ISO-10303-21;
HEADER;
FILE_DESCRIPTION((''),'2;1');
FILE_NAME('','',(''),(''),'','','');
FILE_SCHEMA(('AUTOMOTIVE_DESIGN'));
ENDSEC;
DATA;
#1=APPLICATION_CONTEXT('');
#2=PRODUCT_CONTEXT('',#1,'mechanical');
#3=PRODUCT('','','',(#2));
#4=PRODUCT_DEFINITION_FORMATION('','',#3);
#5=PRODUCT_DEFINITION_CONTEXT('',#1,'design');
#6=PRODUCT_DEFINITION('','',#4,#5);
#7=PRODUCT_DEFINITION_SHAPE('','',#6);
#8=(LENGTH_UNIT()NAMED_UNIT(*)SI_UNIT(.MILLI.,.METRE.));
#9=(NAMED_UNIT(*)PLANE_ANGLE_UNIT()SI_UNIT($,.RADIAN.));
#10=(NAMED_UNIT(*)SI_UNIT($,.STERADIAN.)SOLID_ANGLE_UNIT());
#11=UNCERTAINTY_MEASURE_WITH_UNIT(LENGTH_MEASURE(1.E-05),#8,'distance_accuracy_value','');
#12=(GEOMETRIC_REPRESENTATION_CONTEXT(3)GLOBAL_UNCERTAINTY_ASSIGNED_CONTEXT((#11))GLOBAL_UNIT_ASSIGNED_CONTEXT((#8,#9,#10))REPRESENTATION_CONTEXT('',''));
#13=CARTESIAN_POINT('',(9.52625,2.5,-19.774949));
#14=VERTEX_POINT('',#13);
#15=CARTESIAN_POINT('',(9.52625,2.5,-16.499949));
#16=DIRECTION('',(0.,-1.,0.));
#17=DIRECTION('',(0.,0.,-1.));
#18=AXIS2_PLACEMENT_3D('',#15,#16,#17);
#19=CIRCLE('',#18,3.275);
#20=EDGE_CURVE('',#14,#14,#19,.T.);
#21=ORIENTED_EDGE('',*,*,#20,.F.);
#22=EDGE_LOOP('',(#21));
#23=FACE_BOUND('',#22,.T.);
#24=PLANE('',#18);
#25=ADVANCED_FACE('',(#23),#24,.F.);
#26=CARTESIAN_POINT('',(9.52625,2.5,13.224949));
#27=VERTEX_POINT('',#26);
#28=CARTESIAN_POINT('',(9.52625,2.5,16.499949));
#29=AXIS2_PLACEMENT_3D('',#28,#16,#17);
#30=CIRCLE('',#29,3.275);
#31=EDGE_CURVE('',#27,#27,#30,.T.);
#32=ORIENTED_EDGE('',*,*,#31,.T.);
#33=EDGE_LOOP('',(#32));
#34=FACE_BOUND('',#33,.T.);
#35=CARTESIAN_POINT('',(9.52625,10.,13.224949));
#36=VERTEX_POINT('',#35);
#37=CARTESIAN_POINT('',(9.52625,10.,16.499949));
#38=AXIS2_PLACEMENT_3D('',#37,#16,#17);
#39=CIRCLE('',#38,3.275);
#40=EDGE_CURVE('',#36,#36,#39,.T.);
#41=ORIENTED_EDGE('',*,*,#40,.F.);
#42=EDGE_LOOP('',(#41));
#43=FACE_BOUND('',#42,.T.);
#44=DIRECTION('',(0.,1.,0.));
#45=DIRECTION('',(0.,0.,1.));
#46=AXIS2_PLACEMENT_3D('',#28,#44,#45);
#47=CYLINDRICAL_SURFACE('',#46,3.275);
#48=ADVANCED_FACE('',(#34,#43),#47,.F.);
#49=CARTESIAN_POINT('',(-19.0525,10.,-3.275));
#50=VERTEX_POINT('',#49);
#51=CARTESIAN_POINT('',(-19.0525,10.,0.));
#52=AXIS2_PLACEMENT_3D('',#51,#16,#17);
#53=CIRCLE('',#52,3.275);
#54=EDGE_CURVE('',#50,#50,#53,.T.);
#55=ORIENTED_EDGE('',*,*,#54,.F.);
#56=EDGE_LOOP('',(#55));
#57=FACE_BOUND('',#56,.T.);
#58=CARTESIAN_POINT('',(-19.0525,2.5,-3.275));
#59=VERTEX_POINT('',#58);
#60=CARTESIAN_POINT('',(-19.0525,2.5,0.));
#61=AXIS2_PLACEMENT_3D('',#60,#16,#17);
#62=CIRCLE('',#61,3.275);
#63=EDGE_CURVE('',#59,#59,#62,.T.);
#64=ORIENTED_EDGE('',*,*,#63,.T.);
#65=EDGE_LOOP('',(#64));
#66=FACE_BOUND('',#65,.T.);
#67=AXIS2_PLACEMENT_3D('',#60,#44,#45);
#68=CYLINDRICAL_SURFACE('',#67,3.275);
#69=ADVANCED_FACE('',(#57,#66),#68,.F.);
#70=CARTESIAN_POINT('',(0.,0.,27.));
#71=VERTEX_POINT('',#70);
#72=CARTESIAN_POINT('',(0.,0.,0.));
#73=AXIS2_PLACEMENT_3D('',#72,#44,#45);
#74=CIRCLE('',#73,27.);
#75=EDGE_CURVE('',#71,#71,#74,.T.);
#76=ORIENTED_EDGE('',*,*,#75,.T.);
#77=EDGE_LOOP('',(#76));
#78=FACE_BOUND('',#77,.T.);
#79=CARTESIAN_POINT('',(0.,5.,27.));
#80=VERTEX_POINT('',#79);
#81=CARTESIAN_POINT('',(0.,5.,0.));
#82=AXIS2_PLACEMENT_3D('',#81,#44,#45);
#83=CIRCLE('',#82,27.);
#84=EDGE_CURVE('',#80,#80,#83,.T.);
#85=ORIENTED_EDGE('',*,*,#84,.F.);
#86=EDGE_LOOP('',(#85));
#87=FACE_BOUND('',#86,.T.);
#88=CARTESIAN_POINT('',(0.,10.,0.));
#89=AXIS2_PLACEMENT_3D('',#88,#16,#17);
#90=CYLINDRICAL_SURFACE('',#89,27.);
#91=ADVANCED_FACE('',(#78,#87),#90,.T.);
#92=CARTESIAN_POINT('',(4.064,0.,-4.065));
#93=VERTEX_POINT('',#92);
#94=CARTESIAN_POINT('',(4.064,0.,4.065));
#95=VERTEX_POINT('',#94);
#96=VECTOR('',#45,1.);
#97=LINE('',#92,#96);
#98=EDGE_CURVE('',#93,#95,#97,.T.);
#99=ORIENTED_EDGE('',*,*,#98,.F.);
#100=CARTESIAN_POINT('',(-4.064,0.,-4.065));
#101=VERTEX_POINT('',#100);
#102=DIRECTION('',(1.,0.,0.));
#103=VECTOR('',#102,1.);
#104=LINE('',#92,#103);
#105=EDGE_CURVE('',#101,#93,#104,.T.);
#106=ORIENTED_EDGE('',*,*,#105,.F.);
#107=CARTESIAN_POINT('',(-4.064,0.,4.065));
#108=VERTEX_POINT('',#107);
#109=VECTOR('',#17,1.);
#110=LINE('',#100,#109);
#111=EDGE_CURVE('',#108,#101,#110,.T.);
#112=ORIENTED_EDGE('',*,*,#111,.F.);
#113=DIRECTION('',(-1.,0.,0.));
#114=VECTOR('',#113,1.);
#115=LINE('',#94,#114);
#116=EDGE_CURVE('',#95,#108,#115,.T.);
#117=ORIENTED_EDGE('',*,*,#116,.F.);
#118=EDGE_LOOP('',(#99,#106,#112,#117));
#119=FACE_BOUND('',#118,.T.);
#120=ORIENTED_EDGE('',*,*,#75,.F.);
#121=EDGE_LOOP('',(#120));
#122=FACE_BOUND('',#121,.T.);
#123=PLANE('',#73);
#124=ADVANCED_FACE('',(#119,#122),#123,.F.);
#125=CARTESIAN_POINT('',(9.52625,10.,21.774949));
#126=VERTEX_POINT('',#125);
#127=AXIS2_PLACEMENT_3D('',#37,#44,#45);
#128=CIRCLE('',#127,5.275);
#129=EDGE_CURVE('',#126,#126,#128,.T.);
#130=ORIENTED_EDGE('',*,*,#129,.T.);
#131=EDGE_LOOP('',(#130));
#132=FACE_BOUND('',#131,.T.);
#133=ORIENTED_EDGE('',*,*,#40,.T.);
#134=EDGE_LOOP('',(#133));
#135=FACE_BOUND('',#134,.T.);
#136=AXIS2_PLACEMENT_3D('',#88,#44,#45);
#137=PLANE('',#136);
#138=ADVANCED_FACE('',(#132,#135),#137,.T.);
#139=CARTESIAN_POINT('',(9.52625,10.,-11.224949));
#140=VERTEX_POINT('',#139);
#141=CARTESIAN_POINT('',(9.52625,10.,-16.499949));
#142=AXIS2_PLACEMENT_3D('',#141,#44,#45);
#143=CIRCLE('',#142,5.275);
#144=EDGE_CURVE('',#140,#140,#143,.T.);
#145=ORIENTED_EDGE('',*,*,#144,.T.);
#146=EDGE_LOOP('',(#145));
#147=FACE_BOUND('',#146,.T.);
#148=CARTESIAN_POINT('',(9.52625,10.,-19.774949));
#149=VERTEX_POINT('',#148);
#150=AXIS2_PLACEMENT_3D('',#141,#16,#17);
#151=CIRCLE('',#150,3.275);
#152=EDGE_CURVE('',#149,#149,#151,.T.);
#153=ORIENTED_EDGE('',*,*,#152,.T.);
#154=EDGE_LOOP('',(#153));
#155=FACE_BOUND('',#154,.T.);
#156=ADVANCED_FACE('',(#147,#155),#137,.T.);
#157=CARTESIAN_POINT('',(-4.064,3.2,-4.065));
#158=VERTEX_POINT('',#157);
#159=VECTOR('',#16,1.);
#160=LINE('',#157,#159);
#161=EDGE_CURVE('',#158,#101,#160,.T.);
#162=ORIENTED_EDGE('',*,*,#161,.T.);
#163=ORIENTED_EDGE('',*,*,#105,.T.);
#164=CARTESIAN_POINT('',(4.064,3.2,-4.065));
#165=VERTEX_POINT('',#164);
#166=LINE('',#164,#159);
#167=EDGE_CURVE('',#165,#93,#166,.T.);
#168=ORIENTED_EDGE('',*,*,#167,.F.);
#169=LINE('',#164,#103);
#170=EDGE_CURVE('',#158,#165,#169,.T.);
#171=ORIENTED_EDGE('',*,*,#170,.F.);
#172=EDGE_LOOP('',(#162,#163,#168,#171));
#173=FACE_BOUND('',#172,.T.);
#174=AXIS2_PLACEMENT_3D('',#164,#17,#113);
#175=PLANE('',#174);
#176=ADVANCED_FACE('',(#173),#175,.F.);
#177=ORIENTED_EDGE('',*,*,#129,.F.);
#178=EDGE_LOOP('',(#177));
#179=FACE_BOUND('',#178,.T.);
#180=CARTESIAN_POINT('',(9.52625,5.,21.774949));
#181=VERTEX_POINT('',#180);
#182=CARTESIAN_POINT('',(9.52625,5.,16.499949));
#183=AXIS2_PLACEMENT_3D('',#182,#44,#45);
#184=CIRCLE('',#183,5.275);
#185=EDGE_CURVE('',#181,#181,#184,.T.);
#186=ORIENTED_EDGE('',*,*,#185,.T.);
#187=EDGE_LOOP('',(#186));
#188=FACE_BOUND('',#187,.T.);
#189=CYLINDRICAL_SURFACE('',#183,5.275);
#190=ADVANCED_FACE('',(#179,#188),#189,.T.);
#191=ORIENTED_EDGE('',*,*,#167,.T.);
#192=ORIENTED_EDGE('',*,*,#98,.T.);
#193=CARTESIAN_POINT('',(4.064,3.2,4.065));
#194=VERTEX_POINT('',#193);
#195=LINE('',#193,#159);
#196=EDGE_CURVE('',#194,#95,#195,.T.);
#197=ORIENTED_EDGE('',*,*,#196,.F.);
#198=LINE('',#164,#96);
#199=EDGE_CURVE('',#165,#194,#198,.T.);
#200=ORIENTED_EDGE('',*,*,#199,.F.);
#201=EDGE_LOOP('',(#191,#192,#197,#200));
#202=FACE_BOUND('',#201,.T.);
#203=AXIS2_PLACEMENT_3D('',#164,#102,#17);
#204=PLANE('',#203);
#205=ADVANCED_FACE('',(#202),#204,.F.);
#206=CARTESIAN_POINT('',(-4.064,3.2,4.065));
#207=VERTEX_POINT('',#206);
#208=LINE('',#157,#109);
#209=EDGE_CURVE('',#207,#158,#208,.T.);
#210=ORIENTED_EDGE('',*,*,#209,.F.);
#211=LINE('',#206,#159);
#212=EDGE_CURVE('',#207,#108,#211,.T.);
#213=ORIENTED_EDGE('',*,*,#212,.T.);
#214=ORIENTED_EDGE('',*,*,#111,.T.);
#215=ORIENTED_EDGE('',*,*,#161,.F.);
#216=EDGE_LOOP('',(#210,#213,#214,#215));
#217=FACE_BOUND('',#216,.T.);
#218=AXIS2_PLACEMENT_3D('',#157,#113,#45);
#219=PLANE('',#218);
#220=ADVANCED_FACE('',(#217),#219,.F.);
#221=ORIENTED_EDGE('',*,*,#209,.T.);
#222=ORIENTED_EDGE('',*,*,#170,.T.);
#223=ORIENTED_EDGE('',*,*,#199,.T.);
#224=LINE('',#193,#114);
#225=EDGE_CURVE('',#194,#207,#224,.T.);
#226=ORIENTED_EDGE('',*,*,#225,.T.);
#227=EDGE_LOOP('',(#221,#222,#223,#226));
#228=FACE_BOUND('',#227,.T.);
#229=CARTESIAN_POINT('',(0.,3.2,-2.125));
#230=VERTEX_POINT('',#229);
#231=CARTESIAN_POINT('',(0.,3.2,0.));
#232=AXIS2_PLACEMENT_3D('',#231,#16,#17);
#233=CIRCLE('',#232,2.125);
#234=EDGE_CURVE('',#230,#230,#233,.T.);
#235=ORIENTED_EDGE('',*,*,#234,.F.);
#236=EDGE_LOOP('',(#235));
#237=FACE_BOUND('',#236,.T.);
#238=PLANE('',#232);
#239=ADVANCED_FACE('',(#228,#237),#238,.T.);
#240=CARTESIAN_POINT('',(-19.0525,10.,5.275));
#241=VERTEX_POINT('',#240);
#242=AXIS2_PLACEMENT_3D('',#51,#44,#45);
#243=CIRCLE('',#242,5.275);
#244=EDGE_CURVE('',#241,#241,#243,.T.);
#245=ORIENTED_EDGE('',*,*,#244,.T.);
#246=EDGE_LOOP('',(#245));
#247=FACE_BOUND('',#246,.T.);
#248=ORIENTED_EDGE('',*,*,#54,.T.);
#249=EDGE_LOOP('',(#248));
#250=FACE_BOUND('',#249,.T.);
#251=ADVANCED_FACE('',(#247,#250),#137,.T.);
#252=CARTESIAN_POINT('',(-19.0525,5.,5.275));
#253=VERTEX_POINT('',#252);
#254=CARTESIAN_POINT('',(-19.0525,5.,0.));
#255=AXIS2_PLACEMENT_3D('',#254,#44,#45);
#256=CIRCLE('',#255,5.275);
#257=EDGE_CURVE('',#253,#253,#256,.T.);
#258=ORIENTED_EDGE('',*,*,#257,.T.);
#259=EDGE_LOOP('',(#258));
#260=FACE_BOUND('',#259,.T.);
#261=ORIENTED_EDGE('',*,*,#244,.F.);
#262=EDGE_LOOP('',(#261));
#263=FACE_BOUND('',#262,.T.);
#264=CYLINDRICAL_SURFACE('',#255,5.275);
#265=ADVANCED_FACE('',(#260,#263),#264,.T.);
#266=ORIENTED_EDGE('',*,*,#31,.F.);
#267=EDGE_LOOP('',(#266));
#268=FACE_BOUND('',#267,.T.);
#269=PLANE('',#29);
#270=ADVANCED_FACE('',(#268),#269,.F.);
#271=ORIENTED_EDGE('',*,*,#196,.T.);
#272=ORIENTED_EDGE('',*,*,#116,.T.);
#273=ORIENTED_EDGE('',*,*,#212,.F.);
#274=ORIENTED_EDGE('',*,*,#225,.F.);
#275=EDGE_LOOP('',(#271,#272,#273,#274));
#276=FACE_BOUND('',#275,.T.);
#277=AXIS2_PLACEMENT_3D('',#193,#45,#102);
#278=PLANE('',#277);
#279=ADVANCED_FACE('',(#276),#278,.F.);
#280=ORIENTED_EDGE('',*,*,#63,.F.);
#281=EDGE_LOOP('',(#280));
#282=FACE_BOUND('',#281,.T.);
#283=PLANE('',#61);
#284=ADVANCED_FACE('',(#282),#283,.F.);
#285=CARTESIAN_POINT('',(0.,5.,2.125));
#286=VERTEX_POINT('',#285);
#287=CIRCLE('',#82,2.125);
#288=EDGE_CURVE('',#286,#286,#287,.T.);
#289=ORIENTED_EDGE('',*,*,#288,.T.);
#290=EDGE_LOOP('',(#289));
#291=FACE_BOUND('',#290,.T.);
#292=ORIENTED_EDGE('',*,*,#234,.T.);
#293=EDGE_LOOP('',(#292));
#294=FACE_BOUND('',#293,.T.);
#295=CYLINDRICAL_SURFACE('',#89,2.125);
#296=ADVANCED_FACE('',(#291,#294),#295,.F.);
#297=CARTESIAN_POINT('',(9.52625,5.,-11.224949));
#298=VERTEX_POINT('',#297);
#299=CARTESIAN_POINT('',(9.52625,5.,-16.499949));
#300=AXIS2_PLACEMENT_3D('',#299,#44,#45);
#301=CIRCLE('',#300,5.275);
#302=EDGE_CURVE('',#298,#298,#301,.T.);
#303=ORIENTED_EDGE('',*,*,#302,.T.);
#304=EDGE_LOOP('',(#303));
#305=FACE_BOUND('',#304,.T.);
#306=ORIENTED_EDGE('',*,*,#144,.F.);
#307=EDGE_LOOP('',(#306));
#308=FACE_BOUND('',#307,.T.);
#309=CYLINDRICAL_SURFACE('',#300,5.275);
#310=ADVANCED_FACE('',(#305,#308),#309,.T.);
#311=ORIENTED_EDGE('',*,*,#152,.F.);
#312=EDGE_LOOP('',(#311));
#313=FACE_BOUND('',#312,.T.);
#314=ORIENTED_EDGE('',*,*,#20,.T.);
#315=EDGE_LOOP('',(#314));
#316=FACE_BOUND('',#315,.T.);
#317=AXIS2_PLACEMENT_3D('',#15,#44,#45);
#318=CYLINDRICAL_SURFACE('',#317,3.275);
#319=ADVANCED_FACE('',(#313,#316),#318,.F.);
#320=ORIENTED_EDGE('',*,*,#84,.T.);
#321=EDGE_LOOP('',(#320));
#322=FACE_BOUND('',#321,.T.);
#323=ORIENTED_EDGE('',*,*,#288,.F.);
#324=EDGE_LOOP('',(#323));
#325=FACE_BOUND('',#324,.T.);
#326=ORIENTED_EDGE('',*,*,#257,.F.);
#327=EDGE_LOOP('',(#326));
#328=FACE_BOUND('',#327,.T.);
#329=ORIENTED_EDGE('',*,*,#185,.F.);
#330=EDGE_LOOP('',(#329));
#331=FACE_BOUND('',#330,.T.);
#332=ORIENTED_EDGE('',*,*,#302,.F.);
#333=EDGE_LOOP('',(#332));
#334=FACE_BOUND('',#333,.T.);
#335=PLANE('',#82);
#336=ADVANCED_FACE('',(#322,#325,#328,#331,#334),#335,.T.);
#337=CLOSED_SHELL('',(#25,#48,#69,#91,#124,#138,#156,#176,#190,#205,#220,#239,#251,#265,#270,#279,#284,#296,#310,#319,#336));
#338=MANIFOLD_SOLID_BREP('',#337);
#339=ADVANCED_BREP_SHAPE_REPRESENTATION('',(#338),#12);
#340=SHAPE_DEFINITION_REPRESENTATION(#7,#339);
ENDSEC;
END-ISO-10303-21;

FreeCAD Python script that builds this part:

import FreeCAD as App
import Part
import Sketcher
from FreeCAD import Vector
Q = App.Units.Quantity

doc = App.newDocument("Part")
body = doc.addObject("PartDesign::Body", "Body")

sketch1 = body.newObject("Sketcher::SketchObject", "Sketch")
sketch1.AttachmentSupport = (doc.getObject("XZ_Plane"), [""])
sketch1.MapMode = "FlatFace"
sketch1.addGeometry(Part.Circle(Vector(0, 0, 0), Vector(0, 0, 1), 27), False)
sketch1.addGeometry(Part.Circle(Vector(0, 0, 0), Vector(0, 0, 1), 2.1), False)
sketch1.addConstraint(Sketcher.Constraint("Coincident", 0, 3, -1, 1))
sketch1.addConstraint(Sketcher.Constraint("Coincident", 1, 3, -1, 1))
sketch1.addConstraint(Sketcher.Constraint("Diameter", 0, Q("54 mm")))
sketch1.addConstraint(Sketcher.Constraint("Diameter", 1, Q("4.25 mm")))
pad1 = body.newObject("PartDesign::Pad", "Pad")
pad1.Profile = sketch1
pad1.Length = 10
pad1.Reversed = True

sketch2 = body.newObject("Sketcher::SketchObject", "Sketch001")
sketch2.AttachmentSupport = (doc.getObject("XZ_Plane"), [""])
sketch2.MapMode = "FlatFace"
sketch2.AttachmentOffset = App.Placement(Vector(0, 0, -10), App.Rotation())
sketch2.addGeometry(Part.Circle(Vector(9.5, -16.5, 0), Vector(0, 0, 1), 3.3), False)
sketch2.addGeometry(Part.Circle(Vector(9.5, 16.5, 0), Vector(0, 0, 1), 3.3), False)
sketch2.addGeometry(Part.Circle(Vector(-19.1, 0, 0), Vector(0, 0, 1), 3.3), False)
sketch2.addConstraint(Sketcher.Constraint("Equal", 0, 1))
sketch2.addConstraint(Sketcher.Constraint("Equal", 1, 2))
sketch2.addConstraint(Sketcher.Constraint("Symmetric", 0, 3, 1, 3, -1))
sketch2.addConstraint(Sketcher.Constraint("PointOnObject", 2, 3, -1))
sketch2.addConstraint(Sketcher.Constraint("Diameter", 0, Q("6.55 mm")))
sketch2.addConstraint(Sketcher.Constraint("DistanceX", 2, 3, -1, 1, Q("19.0525 mm")))
sketch2.addConstraint(Sketcher.Constraint("DistanceY", 0, 3, 1, 3, Q("32.999898 mm")))
sketch2.addConstraint(Sketcher.Constraint("DistanceX", -1, 1, 0, 3, Q("9.52625 mm")))
pocket1 = body.newObject("PartDesign::Pocket", "Pocket")
pocket1.Profile = sketch2
pocket1.Length = 7.5
pocket1.Reversed = True

sketch3 = body.newObject("Sketcher::SketchObject", "Sketch002")
sketch3.AttachmentSupport = (doc.getObject("XZ_Plane"), [""])
sketch3.MapMode = "FlatFace"
sketch3.AttachmentOffset = App.Placement(Vector(0, 0, -5), App.Rotation())
sketch3.addGeometry(Part.Circle(Vector(0, 0, 0), Vector(0, 0, 1), 27), False)
sketch3.addGeometry(Part.Circle(Vector(-19, 0, 0), Vector(0, 0, 1), 5), False)
sketch3.addGeometry(Part.Circle(Vector(10, -16, 0), Vector(0, 0, 1), 5), False)
sketch3.addGeometry(Part.Circle(Vector(10, 16, 0), Vector(0, 0, 1), 5), False)
sketch3.addConstraint(Sketcher.Constraint("Coincident", 0, 3, -1, 1))
sketch3.addConstraint(Sketcher.Constraint("Equal", 1, 2))
sketch3.addConstraint(Sketcher.Constraint("Equal", 2, 3))
sketch3.addConstraint(Sketcher.Constraint("Symmetric", 2, 3, 3, 3, -1))
sketch3.addConstraint(Sketcher.Constraint("PointOnObject", 1, 3, -1))
sketch3.addConstraint(Sketcher.Constraint("Diameter", 0, Q("54 mm")))
sketch3.addConstraint(Sketcher.Constraint("Diameter", 1, Q("10.55 mm")))
sketch3.addConstraint(Sketcher.Constraint("DistanceX", 1, 3, -1, 1, Q("19.0525 mm")))
sketch3.addConstraint(Sketcher.Constraint("DistanceY", 2, 3, 3, 3, Q("32.999898 mm")))
sketch3.addConstraint(Sketcher.Constraint("DistanceX", -1, 1, 2, 3, Q("9.52625 mm")))
pocket2 = body.newObject("PartDesign::Pocket", "Pocket001")
pocket2.Profile = sketch3
pocket2.Length = 5

sketch4 = body.newObject("Sketcher::SketchObject", "Sketch003")
sketch4.AttachmentSupport = (doc.getObject("XZ_Plane"), [""])
sketch4.MapMode = "FlatFace"
sketch4.addGeometry(Part.LineSegment(Vector(-4, 4, 0), Vector(-4, -4, 0)), False)
sketch4.addGeometry(Part.LineSegment(Vector(-4, -4, 0), Vector(4, -4, 0)), False)
sketch4.addGeometry(Part.LineSegment(Vector(4, -4, 0), Vector(4, 4, 0)), False)
sketch4.addGeometry(Part.LineSegment(Vector(4, 4, 0), Vector(-4, 4, 0)), False)
sketch4.addConstraint(Sketcher.Constraint("Coincident", 0, 2, 1, 1))
sketch4.addConstraint(Sketcher.Constraint("Coincident", 1, 2, 2, 1))
sketch4.addConstraint(Sketcher.Constraint("Coincident", 2, 2, 3, 1))
sketch4.addConstraint(Sketcher.Constraint("Coincident", 3, 2, 0, 1))
sketch4.addConstraint(Sketcher.Constraint("Vertical", 0))
sketch4.addConstraint(Sketcher.Constraint("Horizontal", 1))
sketch4.addConstraint(Sketcher.Constraint("Vertical", 2))
sketch4.addConstraint(Sketcher.Constraint("Horizontal", 3))
sketch4.addConstraint(Sketcher.Constraint("Symmetric", 0, 2, 2, 2, -1, 1))
sketch4.addConstraint(Sketcher.Constraint("DistanceY", 0, 2, 0, 1, Q("8.13 mm")))
sketch4.addConstraint(Sketcher.Constraint("DistanceX", 1, 1, 1, 2, Q("8.128 mm")))
pocket3 = body.newObject("PartDesign::Pocket", "Pocket002")
pocket3.Profile = sketch4
pocket3.Length = 3.2

doc.recompute()
